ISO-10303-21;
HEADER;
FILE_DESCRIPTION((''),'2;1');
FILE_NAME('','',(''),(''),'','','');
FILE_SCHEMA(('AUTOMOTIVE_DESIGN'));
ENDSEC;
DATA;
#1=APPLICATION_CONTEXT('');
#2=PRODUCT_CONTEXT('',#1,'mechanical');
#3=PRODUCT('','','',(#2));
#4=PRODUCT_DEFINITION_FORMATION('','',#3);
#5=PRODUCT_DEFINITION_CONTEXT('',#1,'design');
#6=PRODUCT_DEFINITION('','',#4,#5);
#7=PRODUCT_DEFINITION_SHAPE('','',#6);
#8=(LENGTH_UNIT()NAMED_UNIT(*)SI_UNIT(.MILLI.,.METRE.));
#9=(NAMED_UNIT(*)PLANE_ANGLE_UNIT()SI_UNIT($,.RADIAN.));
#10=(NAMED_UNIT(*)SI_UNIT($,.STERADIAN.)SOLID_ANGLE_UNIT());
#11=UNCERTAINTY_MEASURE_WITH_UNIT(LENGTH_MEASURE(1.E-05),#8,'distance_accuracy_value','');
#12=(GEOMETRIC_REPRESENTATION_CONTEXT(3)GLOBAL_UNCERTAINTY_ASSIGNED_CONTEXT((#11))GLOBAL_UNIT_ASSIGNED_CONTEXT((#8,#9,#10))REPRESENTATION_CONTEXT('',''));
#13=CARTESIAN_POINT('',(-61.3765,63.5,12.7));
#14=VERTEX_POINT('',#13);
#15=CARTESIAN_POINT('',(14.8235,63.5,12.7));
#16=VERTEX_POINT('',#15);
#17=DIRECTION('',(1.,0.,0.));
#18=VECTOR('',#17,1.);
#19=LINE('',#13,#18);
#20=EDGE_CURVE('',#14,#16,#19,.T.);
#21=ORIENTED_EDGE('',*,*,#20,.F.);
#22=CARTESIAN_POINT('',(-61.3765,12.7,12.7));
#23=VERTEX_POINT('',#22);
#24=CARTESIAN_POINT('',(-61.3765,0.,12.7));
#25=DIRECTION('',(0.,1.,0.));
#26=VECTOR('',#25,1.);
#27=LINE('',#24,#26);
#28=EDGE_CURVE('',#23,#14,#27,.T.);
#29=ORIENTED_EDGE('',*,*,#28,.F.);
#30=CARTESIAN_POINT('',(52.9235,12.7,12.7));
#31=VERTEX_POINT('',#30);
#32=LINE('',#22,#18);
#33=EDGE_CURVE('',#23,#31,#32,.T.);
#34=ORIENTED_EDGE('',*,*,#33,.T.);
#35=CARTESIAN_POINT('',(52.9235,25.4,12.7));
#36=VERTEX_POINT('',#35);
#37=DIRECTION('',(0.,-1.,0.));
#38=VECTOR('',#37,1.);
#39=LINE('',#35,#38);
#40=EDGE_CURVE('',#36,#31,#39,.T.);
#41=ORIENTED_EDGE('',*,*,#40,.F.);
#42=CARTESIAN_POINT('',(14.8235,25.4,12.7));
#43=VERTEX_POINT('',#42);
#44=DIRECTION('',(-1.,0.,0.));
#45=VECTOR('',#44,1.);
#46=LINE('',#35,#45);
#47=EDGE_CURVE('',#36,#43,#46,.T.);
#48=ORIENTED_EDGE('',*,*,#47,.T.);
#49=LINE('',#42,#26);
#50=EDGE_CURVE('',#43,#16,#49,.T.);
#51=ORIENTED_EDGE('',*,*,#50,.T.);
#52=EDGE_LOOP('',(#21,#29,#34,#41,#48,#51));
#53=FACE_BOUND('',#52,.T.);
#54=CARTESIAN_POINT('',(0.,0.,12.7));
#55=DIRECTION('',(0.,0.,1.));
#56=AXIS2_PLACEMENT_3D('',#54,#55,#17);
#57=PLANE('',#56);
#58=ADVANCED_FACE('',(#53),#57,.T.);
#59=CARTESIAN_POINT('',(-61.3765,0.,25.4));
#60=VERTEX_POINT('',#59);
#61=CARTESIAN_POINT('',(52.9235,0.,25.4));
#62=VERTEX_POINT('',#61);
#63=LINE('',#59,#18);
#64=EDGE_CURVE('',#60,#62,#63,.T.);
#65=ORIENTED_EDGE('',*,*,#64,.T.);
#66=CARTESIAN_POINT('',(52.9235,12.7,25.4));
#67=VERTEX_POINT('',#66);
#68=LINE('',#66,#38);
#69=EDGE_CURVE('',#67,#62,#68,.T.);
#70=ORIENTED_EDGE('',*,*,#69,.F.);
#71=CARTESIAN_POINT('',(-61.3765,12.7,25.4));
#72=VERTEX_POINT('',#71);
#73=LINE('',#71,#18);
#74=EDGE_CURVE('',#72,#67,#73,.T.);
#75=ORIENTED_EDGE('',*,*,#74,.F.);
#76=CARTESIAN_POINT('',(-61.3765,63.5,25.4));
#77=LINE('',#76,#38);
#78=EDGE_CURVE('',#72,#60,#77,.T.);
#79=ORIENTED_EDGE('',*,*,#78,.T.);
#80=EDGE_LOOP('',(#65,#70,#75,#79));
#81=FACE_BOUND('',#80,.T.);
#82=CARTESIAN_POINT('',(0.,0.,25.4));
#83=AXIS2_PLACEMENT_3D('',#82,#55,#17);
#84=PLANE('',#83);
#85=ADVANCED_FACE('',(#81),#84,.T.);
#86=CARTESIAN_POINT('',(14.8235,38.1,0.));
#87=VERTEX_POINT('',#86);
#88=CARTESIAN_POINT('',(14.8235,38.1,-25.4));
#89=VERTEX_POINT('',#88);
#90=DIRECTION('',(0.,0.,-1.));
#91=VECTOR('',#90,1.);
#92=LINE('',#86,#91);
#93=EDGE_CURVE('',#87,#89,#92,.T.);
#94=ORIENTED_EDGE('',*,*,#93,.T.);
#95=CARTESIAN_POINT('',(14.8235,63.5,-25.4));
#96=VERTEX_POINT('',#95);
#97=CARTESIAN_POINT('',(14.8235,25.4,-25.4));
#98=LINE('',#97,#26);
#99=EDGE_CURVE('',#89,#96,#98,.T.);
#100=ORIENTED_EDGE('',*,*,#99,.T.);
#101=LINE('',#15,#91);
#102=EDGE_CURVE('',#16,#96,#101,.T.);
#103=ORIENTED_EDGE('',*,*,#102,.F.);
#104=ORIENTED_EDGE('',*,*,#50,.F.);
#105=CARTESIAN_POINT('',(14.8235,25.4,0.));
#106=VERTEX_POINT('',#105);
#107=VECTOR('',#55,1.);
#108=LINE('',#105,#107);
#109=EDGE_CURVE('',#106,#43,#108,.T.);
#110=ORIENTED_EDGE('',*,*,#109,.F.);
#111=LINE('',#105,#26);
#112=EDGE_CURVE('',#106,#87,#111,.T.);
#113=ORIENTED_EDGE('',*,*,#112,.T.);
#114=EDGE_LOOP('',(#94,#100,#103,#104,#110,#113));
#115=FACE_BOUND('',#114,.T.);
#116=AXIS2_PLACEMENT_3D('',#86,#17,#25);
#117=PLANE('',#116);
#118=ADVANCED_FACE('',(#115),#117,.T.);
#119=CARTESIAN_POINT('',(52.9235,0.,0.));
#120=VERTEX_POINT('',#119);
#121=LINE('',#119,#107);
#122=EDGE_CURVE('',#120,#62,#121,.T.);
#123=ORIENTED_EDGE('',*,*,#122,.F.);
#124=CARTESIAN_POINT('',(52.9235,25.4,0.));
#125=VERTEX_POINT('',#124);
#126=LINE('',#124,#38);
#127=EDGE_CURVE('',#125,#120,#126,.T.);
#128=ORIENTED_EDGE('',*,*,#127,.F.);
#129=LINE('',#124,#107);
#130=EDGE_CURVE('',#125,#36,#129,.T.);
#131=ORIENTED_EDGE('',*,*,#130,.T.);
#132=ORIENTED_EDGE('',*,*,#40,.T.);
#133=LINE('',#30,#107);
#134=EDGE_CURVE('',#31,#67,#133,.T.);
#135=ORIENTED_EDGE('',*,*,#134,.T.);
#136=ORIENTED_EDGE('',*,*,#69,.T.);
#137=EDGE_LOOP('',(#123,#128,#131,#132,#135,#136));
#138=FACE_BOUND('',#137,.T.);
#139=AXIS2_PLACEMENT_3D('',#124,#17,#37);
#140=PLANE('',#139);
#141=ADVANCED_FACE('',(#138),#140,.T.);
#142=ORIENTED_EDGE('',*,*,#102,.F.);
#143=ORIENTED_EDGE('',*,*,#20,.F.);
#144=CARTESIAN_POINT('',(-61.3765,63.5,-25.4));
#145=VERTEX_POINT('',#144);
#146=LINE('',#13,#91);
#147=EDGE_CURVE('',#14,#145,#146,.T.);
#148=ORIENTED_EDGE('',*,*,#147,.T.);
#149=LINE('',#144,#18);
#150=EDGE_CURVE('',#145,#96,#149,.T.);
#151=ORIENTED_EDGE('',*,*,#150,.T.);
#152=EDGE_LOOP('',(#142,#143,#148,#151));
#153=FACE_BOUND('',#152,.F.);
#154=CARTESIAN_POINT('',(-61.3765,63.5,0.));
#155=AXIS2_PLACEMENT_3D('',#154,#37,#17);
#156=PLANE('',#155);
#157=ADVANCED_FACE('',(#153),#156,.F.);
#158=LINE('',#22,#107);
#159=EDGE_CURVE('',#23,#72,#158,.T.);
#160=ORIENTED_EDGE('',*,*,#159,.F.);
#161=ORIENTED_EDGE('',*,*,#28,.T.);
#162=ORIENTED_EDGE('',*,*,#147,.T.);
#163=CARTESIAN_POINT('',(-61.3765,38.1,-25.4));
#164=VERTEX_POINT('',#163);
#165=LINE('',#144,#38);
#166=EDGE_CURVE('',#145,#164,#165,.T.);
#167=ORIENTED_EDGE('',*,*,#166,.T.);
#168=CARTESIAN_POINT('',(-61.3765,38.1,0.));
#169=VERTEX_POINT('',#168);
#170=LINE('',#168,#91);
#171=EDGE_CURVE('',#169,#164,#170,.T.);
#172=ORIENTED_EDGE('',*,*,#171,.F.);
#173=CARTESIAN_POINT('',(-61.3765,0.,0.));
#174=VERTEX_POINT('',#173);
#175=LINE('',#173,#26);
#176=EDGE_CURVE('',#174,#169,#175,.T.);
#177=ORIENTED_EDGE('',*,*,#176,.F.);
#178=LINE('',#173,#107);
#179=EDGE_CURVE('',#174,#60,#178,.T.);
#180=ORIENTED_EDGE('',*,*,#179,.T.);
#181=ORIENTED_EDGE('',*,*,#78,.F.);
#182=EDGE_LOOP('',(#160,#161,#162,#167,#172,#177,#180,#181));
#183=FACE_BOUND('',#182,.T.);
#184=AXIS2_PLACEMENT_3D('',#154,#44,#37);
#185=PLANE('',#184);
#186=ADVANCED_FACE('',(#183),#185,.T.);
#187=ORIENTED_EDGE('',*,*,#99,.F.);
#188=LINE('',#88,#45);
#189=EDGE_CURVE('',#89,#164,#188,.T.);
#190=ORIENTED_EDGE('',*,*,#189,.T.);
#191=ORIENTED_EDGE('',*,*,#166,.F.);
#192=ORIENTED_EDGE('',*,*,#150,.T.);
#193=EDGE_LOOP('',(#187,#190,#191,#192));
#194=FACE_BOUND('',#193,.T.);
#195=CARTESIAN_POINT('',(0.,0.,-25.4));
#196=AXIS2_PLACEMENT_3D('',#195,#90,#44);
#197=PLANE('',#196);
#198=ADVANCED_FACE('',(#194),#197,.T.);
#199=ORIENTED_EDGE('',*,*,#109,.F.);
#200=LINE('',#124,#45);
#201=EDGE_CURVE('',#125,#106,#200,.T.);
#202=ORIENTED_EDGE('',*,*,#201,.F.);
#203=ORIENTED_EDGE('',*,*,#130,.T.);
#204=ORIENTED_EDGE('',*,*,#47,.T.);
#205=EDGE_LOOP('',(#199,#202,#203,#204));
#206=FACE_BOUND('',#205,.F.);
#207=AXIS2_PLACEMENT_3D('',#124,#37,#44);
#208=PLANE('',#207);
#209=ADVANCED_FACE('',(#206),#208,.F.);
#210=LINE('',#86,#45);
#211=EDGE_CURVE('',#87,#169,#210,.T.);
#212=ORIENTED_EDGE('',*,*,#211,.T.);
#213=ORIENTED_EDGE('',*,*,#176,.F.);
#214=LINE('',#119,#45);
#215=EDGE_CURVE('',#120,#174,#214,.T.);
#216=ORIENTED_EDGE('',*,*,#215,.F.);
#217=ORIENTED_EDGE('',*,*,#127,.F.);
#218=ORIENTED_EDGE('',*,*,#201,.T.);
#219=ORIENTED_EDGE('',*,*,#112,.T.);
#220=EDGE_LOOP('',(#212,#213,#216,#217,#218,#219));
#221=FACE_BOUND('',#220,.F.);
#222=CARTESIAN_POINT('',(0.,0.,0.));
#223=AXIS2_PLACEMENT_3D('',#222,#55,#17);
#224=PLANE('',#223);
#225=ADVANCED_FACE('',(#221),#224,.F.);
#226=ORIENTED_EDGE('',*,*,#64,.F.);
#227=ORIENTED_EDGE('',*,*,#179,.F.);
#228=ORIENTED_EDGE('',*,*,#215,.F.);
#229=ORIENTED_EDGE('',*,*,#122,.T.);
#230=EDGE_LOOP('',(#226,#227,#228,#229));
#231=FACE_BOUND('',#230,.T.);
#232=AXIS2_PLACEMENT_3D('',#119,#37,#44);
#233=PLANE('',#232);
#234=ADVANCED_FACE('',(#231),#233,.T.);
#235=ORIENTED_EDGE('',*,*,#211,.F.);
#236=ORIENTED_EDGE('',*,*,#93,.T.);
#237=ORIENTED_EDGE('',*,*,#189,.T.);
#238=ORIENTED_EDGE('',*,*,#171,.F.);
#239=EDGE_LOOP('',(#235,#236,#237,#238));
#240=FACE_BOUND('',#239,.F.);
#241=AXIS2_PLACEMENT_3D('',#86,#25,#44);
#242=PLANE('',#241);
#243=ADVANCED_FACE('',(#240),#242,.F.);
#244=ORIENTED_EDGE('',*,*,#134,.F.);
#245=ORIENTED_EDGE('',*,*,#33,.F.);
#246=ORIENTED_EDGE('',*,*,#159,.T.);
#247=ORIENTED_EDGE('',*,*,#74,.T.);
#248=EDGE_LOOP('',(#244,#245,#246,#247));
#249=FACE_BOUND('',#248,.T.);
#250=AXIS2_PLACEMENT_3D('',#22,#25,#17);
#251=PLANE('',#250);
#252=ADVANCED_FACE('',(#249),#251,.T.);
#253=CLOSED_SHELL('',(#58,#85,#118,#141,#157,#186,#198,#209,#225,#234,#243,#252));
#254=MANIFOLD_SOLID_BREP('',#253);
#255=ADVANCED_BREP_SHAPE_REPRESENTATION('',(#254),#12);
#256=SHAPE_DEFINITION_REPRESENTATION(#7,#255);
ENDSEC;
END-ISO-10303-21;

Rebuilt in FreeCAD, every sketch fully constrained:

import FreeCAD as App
import Part
import Sketcher

V = App.Vector
Q = App.Units.Quantity

doc = App.newDocument("Part")
body = doc.addObject("PartDesign::Body", "Body")

sketch1 = body.newObject("Sketcher::SketchObject", "Sketch")
sketch1.AttachmentSupport = (doc.getObject("XY_Plane"), [""])
sketch1.MapMode = "FlatFace"
sketch1.addGeometry([
    Part.LineSegment(V(15, 64, 0), V(-61, 64, 0)),
    Part.LineSegment(V(-61, 64, 0), V(-61, 0, 0)),
    Part.LineSegment(V(-61, 0, 0), V(53, 0, 0)),
    Part.LineSegment(V(53, 0, 0), V(53, 25, 0)),
    Part.LineSegment(V(53, 25, 0), V(15, 25, 0)),
    Part.LineSegment(V(15, 25, 0), V(15, 64, 0)),
], False)
sketch1.addConstraint([
    Sketcher.Constraint("Coincident", 0, 2, 1, 1),
    Sketcher.Constraint("Coincident", 1, 2, 2, 1),
    Sketcher.Constraint("Coincident", 2, 2, 3, 1),
    Sketcher.Constraint("Coincident", 3, 2, 4, 1),
    Sketcher.Constraint("Coincident", 4, 2, 5, 1),
    Sketcher.Constraint("Coincident", 5, 2, 0, 1),
    Sketcher.Constraint("Horizontal", 0),
    Sketcher.Constraint("Vertical", 1),
    Sketcher.Constraint("Horizontal", 2),
    Sketcher.Constraint("Vertical", 3),
    Sketcher.Constraint("Horizontal", 4),
    Sketcher.Constraint("Vertical", 5),
    Sketcher.Constraint("PointOnObject", 1, 2, -1),
    Sketcher.Constraint("Equal", 4, 5),
    Sketcher.Constraint("DistanceX", 0, 2, 0, 1, Q("3 in")),
    Sketcher.Constraint("DistanceY", 3, 1, 3, 2, Q("1 in")),
    Sketcher.Constraint("DistanceX", 2, 1, 2, 2, Q("4.5 in")),
    Sketcher.Constraint("DistanceX", 0, 2, -1, 1, Q("2.4164 in")),
])
pad1 = body.newObject("PartDesign::Pad", "Pad")
pad1.Profile = sketch1
pad1.Length = Q("0.5 in")

sketch2 = body.newObject("Sketcher::SketchObject", "Sketch001")
sketch2.AttachmentSupport = (doc.getObject("XY_Plane"), [""])
sketch2.MapMode = "FlatFace"
sketch2.AttachmentOffset = App.Placement(V(0, 0, 0.5 * 25.4), App.Rotation())
sketch2.addGeometry([
    Part.LineSegment(V(-61, 13, 0), V(-61, 0, 0)),
    Part.LineSegment(V(-61, 0, 0), V(53, 0, 0)),
    Part.LineSegment(V(53, 0, 0), V(53, 13, 0)),
    Part.LineSegment(V(53, 13, 0), V(-61, 13, 0)),
], False)
sketch2.addConstraint([
    Sketcher.Constraint("Coincident", 0, 2, 1, 1),
    Sketcher.Constraint("Coincident", 1, 2, 2, 1),
    Sketcher.Constraint("Coincident", 2, 2, 3, 1),
    Sketcher.Constraint("Coincident", 3, 2, 0, 1),
    Sketcher.Constraint("Vertical", 0),
    Sketcher.Constraint("Horizontal", 1),
    Sketcher.Constraint("Vertical", 2),
    Sketcher.Constraint("Horizontal", 3),
    Sketcher.Constraint("PointOnObject", 0, 2, -1),
    Sketcher.Constraint("DistanceY", 0, 2, 0, 1, Q("0.5 in")),
    Sketcher.Constraint("DistanceX", 1, 1, 1, 2, Q("4.5 in")),
    Sketcher.Constraint("DistanceX", 0, 2, -1, 1, Q("2.4164 in")),
])
pad2 = body.newObject("PartDesign::Pad", "Pad001")
pad2.Profile = sketch2
pad2.Length = Q("0.5 in")

sketch3 = body.newObject("Sketcher::SketchObject", "Sketch002")
sketch3.AttachmentSupport = (doc.getObject("XY_Plane"), [""])
sketch3.MapMode = "FlatFace"
sketch3.addGeometry([
    Part.LineSegment(V(-61, 38, 0), V(-61, 64, 0)),
    Part.LineSegment(V(-61, 64, 0), V(15, 64, 0)),
    Part.LineSegment(V(15, 64, 0), V(15, 38, 0)),
    Part.LineSegment(V(15, 38, 0), V(-61, 38, 0)),
], False)
sketch3.addConstraint([
    Sketcher.Constraint("Coincident", 0, 2, 1, 1),
    Sketcher.Constraint("Coincident", 1, 2, 2, 1),
    Sketcher.Constraint("Coincident", 2, 2, 3, 1),
    Sketcher.Constraint("Coincident", 3, 2, 0, 1),
    Sketcher.Constraint("Vertical", 0),
    Sketcher.Constraint("Horizontal", 1),
    Sketcher.Constraint("Vertical", 2),
    Sketcher.Constraint("Horizontal", 3),
    Sketcher.Constraint("DistanceY", 0, 1, 0, 2, Q("1 in")),
    Sketcher.Constraint("DistanceX", 1, 1, 1, 2, Q("3 in")),
    Sketcher.Constraint("DistanceY", -1, 1, 0, 2, Q("2.5 in")),
    Sketcher.Constraint("DistanceX", 0, 2, -1, 1, Q("2.4164 in")),
])
pad3 = body.newObject("PartDesign::Pad", "Pad002")
pad3.Profile = sketch3
pad3.Length = Q("1 in")
pad3.Reversed = True

doc.recompute()
